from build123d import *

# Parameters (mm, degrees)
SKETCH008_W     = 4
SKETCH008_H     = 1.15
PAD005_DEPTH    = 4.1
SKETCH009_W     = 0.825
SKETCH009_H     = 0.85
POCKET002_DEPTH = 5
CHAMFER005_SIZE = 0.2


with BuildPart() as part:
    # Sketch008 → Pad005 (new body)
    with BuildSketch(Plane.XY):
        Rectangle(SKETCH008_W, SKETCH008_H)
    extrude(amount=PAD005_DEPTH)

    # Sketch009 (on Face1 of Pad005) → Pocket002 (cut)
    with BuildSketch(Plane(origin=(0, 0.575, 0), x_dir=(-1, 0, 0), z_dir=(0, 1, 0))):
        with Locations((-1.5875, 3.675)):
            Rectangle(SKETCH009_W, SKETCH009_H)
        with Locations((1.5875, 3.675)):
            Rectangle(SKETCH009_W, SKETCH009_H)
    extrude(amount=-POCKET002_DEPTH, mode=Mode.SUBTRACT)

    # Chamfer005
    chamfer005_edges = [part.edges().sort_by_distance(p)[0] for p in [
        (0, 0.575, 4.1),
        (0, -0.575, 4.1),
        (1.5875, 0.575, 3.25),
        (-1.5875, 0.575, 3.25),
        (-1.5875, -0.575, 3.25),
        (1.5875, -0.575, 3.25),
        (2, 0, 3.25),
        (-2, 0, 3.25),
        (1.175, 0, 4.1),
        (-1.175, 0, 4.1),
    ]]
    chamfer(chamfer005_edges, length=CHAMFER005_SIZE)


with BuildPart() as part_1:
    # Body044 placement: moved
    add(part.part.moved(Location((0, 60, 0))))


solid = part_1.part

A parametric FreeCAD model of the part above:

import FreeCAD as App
import Part
import Sketcher
from FreeCAD import Vector


def edges_at(feature, points):
    """Names of the edges that pass closest to the given points."""
    edges = feature.Shape.Edges
    near = lambda p: min(range(len(edges)), key=lambda i: edges[i].distToShape(Part.Vertex(*p))[0])
    return sorted({f"Edge{near(p) + 1}" for p in points})

doc = App.newDocument("Part")
body = doc.addObject("PartDesign::Body", "Body")

sketch1 = body.newObject("Sketcher::SketchObject", "Sketch")
sketch1.AttachmentSupport = (doc.getObject("XY_Plane"), [""])
sketch1.MapMode = "FlatFace"
sketch1.addGeometry([
    Part.LineSegment(Vector(-2, 0.6, 0), Vector(-2, -0.6, 0)),
    Part.LineSegment(Vector(-2, -0.6, 0), Vector(2, -0.6, 0)),
    Part.LineSegment(Vector(2, -0.6, 0), Vector(2, 0.6, 0)),
    Part.LineSegment(Vector(2, 0.6, 0), Vector(-2, 0.6, 0)),
], False)
sketch1.addConstraint([
    Sketcher.Constraint("Coincident", 0, 2, 1, 1),
    Sketcher.Constraint("Coincident", 1, 2, 2, 1),
    Sketcher.Constraint("Coincident", 2, 2, 3, 1),
    Sketcher.Constraint("Coincident", 3, 2, 0, 1),
    Sketcher.Constraint("Vertical", 0),
    Sketcher.Constraint("Horizontal", 1),
    Sketcher.Constraint("Vertical", 2),
    Sketcher.Constraint("Horizontal", 3),
    Sketcher.Constraint("Symmetric", 0, 2, 2, 2, -1, 1),
    Sketcher.Constraint("DistanceX", 1, 1, 1, 2, 4.0),
    Sketcher.Constraint("DistanceY", 0, 2, 0, 1, 1.15),
])
pad1 = body.newObject("PartDesign::Pad", "Pad")
pad1.Profile = sketch1
pad1.Length = 4.1

sketch2 = body.newObject("Sketcher::SketchObject", "Sketch001")
sketch2.AttachmentSupport = (doc.getObject("XZ_Plane"), [""])
sketch2.MapMode = "FlatFace"
sketch2.AttachmentOffset = App.Placement(Vector(0, 0, -0.575), App.Rotation())
sketch2.addGeometry([
    Part.LineSegment(Vector(2, 4.1, 0), Vector(2, 3.2, 0)),
    Part.LineSegment(Vector(2, 3.2, 0), Vector(1.2, 3.2, 0)),
    Part.LineSegment(Vector(1.2, 3.2, 0), Vector(1.2, 4.1, 0)),
    Part.LineSegment(Vector(1.2, 4.1, 0), Vector(2, 4.1, 0)),
    Part.LineSegment(Vector(-1.2, 4.1, 0), Vector(-1.2, 3.2, 0)),
    Part.LineSegment(Vector(-1.2, 3.2, 0), Vector(-2, 3.2, 0)),
    Part.LineSegment(Vector(-2, 3.2, 0), Vector(-2, 4.1, 0)),
    Part.LineSegment(Vector(-2, 4.1, 0), Vector(-1.2, 4.1, 0)),
], False)
sketch2.addConstraint([
    Sketcher.Constraint("Coincident", 0, 2, 1, 1),
    Sketcher.Constraint("Coincident", 1, 2, 2, 1),
    Sketcher.Constraint("Coincident", 2, 2, 3, 1),
    Sketcher.Constraint("Coincident", 3, 2, 0, 1),
    Sketcher.Constraint("Coincident", 4, 2, 5, 1),
    Sketcher.Constraint("Coincident", 5, 2, 6, 1),
    Sketcher.Constraint("Coincident", 6, 2, 7, 1),
    Sketcher.Constraint("Coincident", 7, 2, 4, 1),
    Sketcher.Constraint("Vertical", 0),
    Sketcher.Constraint("Horizontal", 1),
    Sketcher.Constraint("Vertical", 2),
    Sketcher.Constraint("Horizontal", 3),
    Sketcher.Constraint("Vertical", 4),
    Sketcher.Constraint("Horizontal", 5),
    Sketcher.Constraint("Vertical", 6),
    Sketcher.Constraint("Horizontal", 7),
    Sketcher.Constraint("Symmetric", 1, 2, 4, 2, -2),
    Sketcher.Constraint("Symmetric", 3, 2, 6, 2, -2),
    Sketcher.Constraint("DistanceX", -1, 1, 0, 2, 2.0),
    Sketcher.Constraint("DistanceY", 0, 2, 0, 1, 0.85),
    Sketcher.Constraint("DistanceY", -1, 1, 2, 2, 4.1),
    Sketcher.Constraint("DistanceX", 1, 2, 1, 1, 0.825),
])
pocket1 = body.newObject("PartDesign::Pocket", "Pocket")
pocket1.Profile = sketch2
pocket1.Length = 5
pocket1.Reversed = True
doc.recompute()

chamfer = body.newObject("PartDesign::Chamfer", "Chamfer")
chamfer.Base = (pocket1, edges_at(pocket1, [
    (0, 0.575, 4.1),
    (0, -0.575, 4.1),
    (1.587, 0.575, 3.25),
    (-1.587, 0.575, 3.25),
    (-1.587, -0.575, 3.25),
    (1.587, -0.575, 3.25),
    (2, 0, 3.25),
    (-2, 0, 3.25),
    (1.175, 0, 4.1),
    (-1.175, 0, 4.1),
]))
chamfer.Size = 0.2
body2 = doc.addObject("PartDesign::Body", "Body001")
doc.recompute()

body.Placement = App.Placement(Vector(0, 60, 0), App.Rotation(Vector(0, 0, 1), 0))
boolean = body2.newObject("PartDesign::Boolean", "Boolean")
boolean.Type = "Fuse"
boolean.addObjects([body])

doc.recompute()
